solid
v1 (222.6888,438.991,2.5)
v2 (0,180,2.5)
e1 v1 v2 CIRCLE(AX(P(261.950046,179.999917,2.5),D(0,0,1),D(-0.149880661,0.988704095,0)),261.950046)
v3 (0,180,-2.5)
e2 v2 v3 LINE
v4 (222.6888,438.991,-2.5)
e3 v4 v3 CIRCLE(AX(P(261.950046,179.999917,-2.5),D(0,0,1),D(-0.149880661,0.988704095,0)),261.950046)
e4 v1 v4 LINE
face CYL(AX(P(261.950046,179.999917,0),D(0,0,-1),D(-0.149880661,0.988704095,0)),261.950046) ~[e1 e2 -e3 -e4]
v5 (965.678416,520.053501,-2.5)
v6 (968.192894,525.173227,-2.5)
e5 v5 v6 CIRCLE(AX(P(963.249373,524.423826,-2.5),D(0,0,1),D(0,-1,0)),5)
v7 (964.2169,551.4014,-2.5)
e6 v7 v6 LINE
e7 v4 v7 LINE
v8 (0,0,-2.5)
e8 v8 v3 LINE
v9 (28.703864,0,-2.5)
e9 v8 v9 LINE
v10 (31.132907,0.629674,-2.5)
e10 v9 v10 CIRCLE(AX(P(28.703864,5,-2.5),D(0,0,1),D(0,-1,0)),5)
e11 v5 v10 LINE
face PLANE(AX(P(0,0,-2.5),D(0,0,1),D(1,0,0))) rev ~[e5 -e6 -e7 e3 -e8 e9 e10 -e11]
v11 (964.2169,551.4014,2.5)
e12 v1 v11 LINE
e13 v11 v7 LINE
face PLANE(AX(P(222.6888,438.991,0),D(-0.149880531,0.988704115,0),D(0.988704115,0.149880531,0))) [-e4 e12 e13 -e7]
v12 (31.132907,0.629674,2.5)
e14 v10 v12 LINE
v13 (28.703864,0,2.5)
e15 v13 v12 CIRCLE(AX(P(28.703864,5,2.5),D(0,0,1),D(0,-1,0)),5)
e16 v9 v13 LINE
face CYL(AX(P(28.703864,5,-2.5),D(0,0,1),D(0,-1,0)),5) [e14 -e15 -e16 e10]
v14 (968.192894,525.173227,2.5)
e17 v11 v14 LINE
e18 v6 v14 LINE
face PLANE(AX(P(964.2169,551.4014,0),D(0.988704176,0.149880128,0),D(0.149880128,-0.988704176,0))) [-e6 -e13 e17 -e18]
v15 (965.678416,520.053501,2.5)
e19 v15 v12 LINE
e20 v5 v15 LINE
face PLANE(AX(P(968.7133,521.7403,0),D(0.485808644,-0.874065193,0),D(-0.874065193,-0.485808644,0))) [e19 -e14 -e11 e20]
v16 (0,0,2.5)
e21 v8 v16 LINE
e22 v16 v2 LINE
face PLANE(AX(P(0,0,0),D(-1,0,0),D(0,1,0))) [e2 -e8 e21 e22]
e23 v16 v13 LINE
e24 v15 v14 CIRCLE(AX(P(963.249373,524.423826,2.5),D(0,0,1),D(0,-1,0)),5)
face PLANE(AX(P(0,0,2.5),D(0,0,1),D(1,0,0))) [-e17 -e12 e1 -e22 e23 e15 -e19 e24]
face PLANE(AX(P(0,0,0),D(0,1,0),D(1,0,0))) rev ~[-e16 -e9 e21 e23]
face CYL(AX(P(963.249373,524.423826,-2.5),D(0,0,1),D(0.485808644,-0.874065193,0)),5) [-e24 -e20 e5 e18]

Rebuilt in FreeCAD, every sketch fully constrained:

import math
import FreeCAD as App
import Part
import Sketcher
from FreeCAD import Vector
Q = App.Units.Quantity


def edges_at(feature, points):
    """Names of the edges that pass closest to the given points."""
    edges = feature.Shape.Edges
    near = lambda p: min(range(len(edges)), key=lambda i: edges[i].distToShape(Part.Vertex(*p))[0])
    return sorted({f"Edge{near(p) + 1}" for p in points})

doc = App.newDocument("Part")
body = doc.addObject("PartDesign::Body", "Body")

# Sketch on XY plane
sketch1 = body.newObject("Sketcher::SketchObject", "Sketch")
sketch1.AttachmentSupport = (doc.getObject("XY_Plane"), [""])
sketch1.MapMode = "FlatFace"
sketch1.addGeometry([
    Part.LineSegment(Vector(0, 180, 0), Vector(0, 0, 0)),  # 0
    Part.LineSegment(Vector(0, 0, 0), Vector(30, 0, 0)),  # 1
    Part.LineSegment(Vector(30, 0, 0), Vector(969, 522, 0)),  # 2
    Part.LineSegment(Vector(969, 522, 0), Vector(964, 551, 0)),  # 3
    Part.LineSegment(Vector(964, 551, 0), Vector(223, 439, 0)),  # 4
    Part.ArcOfCircle(Part.Circle(Vector(262, 180, 0), Vector(0, 0, 1), 262), math.radians(99), math.radians(180)),  # 5
], False)
sketch1.addConstraint([
    Sketcher.Constraint("Coincident", 0, 2, 1, 1),
    Sketcher.Constraint("Coincident", 1, 2, 2, 1),
    Sketcher.Constraint("Coincident", 2, 2, 3, 1),
    Sketcher.Constraint("Coincident", 3, 2, 4, 1),
    Sketcher.Constraint("Tangent", 4, 2, 5, 1),
    Sketcher.Constraint("Tangent", 5, 2, 0, 1),
    Sketcher.Constraint("Vertical", 0),
    Sketcher.Constraint("Horizontal", 1),
    Sketcher.Constraint("Coincident", 0, 2, -1, 1),
    Sketcher.Constraint("Perpendicular", 3, 4),
    Sketcher.Constraint("DistanceX", 1, 1, 1, 2, 30.0),
    Sketcher.Constraint("DistanceY", 0, 2, 0, 1, 180.0),
    Sketcher.Constraint("Radius", 5, 261.95),
    Sketcher.Constraint("Distance", 3, 30.0),
    Sketcher.Constraint("Distance", 4, 750.0),
    Sketcher.Constraint("Angle", 3, Q("98.62 deg")),
])
pad1 = body.newObject("PartDesign::Pad", "Pad")
pad1.Profile = sketch1
pad1.Length = 5
pad1.Midplane = True
doc.recompute()

fillet = body.newObject("PartDesign::Fillet", "Fillet")
fillet.Base = (pad1, edges_at(pad1, [(968.713, 521.74, 0), (30, 0, 0)]))
fillet.Radius = 5

doc.recompute()
